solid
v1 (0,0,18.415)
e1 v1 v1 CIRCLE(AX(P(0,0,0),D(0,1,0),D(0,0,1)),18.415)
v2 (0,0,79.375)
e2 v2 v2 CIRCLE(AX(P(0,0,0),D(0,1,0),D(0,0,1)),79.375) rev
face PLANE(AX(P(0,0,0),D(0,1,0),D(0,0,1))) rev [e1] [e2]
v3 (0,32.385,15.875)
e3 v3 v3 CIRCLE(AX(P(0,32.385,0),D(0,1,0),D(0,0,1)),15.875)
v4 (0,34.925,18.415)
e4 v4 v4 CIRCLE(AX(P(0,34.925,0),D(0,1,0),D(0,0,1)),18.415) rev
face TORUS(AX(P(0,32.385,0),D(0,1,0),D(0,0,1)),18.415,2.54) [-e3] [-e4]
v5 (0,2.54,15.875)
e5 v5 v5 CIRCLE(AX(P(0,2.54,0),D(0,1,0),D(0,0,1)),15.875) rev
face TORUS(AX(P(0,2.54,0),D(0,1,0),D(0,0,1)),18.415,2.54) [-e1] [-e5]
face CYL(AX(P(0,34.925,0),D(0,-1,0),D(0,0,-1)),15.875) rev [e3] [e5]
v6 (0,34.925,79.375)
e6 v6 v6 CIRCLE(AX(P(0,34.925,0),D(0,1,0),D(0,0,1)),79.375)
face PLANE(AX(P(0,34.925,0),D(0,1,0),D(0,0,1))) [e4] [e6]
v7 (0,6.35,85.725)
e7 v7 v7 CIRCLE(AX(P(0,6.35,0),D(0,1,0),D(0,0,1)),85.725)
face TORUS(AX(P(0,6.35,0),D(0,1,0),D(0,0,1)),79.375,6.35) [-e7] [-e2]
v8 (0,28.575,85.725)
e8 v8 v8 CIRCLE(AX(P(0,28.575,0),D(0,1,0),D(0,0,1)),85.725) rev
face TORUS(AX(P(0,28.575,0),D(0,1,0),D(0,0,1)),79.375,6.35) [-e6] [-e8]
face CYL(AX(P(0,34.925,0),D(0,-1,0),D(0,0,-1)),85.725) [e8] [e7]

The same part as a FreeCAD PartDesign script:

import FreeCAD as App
import Part
import Sketcher
from FreeCAD import Vector
Q = App.Units.Quantity


def edges_at(feature, points):
    """Names of the edges that pass closest to the given points."""
    edges = feature.Shape.Edges
    near = lambda p: min(range(len(edges)), key=lambda i: edges[i].distToShape(Part.Vertex(*p))[0])
    return sorted({f"Edge{near(p) + 1}" for p in points})

doc = App.newDocument("Part")
body = doc.addObject("PartDesign::Body", "Body")

sketch1 = body.newObject("Sketcher::SketchObject", "Sketch")
sketch1.AttachmentSupport = (doc.getObject("XZ_Plane"), [""])
sketch1.MapMode = "FlatFace"
sketch1.addGeometry([
    Part.Circle(Vector(0, 0, 0), Vector(0, 0, 1), 85.725),
    Part.Circle(Vector(0, 0, 0), Vector(0, 0, 1), 15.875),
], False)
sketch1.addConstraint([
    Sketcher.Constraint("Coincident", 0, 3, -1, 1),
    Sketcher.Constraint("Coincident", 1, 3, -1, 1),
    Sketcher.Constraint("Diameter", 0, Q("6.75 in")),
    Sketcher.Constraint("Diameter", 1, Q("1.25 in")),
])
pad1 = body.newObject("PartDesign::Pad", "Pad")
pad1.Profile = sketch1
pad1.Length = Q("1.375 in")
pad1.Reversed = True
doc.recompute()

fillet = body.newObject("PartDesign::Fillet", "Fillet")
fillet.Base = (pad1, edges_at(pad1, [(-85.725, 0, 0), (-85.725, 34.925, 0)]))
fillet.Radius = Q("0.25 in")
doc.recompute()

fillet2 = body.newObject("PartDesign::Fillet", "Fillet001")
fillet2.Base = (fillet, edges_at(fillet, [(-15.875, 0, 0), (-15.875, 34.925, 0)]))
fillet2.Radius = Q("0.1 in")

doc.recompute()
